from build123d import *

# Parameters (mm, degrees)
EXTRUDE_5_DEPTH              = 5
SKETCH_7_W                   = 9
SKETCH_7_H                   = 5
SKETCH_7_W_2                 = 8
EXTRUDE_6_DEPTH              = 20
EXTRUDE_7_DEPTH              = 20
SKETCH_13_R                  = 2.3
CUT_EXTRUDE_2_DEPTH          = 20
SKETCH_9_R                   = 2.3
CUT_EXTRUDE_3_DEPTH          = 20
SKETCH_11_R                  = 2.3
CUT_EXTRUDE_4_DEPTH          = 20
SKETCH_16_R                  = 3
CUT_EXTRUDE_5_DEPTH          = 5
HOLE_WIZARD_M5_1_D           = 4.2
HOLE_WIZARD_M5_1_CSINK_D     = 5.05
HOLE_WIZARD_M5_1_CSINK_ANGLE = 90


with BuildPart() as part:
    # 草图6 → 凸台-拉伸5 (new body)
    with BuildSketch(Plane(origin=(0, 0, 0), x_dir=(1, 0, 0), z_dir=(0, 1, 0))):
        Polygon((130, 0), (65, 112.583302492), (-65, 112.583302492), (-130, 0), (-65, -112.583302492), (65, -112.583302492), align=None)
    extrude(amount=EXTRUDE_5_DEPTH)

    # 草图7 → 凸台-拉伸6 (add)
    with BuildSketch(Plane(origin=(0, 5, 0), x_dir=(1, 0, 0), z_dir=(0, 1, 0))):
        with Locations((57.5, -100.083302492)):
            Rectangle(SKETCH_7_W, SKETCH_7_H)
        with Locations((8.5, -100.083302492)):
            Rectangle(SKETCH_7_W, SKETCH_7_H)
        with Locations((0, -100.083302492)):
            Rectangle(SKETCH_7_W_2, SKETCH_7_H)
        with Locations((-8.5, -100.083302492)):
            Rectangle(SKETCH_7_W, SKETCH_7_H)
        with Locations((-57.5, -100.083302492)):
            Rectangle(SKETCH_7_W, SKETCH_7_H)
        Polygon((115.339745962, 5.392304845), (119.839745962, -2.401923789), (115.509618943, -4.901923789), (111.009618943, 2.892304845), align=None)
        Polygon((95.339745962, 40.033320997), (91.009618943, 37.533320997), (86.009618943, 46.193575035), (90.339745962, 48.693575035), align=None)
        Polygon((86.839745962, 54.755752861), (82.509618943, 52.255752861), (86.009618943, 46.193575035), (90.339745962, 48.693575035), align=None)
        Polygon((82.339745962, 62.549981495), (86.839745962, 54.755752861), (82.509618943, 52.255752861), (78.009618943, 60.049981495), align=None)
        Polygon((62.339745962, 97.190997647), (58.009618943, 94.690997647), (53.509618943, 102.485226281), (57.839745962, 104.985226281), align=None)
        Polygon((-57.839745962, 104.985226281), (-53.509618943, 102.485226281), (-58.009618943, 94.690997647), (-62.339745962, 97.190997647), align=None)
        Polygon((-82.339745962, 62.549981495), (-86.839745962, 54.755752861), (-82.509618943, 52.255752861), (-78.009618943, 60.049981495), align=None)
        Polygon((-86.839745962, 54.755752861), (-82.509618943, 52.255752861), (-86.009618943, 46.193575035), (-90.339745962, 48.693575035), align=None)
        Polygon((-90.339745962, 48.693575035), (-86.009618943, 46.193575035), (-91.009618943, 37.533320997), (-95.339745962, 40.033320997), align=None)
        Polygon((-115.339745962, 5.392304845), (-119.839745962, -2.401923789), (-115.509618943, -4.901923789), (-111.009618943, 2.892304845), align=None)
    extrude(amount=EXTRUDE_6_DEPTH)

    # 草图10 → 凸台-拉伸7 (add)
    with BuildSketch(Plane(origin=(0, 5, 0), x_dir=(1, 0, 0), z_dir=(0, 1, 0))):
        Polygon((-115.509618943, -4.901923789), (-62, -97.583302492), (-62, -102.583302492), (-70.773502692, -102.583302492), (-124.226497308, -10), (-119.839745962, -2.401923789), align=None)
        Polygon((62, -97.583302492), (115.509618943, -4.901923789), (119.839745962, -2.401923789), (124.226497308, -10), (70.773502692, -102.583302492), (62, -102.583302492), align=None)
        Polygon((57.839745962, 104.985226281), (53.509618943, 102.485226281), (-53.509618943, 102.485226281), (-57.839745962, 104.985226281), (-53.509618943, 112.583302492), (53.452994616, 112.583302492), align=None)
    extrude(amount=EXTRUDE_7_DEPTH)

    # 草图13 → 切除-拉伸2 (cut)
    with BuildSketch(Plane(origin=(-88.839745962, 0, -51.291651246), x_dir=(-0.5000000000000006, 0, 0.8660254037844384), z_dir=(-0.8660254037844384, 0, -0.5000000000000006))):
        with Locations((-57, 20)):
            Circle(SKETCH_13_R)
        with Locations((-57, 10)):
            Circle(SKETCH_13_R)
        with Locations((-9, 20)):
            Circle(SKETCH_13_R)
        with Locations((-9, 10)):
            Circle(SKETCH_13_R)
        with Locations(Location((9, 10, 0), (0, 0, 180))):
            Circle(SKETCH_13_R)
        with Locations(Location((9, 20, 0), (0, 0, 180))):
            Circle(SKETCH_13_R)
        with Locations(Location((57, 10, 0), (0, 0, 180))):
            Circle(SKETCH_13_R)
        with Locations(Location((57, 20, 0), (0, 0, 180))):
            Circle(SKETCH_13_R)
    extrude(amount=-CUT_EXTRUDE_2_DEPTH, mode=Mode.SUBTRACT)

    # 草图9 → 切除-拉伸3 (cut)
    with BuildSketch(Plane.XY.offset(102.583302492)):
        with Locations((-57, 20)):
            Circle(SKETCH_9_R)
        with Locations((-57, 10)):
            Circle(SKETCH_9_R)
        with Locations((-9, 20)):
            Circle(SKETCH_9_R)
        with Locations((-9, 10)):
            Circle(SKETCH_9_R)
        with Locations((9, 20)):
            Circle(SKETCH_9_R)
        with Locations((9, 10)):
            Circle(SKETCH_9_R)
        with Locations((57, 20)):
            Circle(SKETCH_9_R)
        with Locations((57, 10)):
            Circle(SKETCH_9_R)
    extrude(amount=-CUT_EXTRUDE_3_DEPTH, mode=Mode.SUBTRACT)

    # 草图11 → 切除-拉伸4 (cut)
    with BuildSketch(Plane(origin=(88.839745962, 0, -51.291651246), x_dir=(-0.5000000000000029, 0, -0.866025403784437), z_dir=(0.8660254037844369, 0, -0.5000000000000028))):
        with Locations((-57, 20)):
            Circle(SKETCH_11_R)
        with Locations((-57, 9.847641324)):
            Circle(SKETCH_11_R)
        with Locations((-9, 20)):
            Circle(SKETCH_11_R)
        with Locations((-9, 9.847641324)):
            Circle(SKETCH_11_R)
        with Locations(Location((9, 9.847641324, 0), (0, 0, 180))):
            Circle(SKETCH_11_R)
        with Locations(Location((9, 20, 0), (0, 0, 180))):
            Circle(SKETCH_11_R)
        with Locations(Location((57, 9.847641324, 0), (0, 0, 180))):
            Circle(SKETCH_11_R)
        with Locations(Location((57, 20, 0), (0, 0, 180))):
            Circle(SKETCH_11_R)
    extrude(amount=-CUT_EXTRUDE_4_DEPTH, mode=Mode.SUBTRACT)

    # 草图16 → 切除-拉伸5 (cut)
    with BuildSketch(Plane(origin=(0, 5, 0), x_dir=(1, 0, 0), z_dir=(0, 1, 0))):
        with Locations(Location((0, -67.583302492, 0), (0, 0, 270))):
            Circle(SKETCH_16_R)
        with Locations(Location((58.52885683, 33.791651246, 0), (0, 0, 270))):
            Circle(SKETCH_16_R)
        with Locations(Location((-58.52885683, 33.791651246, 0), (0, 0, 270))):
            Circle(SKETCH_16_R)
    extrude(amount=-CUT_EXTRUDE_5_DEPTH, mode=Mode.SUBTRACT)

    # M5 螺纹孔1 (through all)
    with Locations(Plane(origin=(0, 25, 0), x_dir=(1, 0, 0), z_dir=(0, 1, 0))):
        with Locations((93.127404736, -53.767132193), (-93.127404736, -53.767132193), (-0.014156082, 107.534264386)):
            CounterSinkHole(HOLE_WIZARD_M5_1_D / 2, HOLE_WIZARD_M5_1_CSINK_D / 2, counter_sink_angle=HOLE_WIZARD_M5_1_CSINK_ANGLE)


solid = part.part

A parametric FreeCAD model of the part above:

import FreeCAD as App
import Part
import Sketcher
from FreeCAD import Vector
Q = App.Units.Quantity


def add_polygon(sketch, points):
    """Adds a closed chain of lines whose ends are joined by coincident constraints."""
    first, n = sketch.GeometryCount, len(points)
    for a, b in zip(points, points[1:] + points[:1]):
        sketch.addGeometry(Part.LineSegment(App.Vector(*a, 0), App.Vector(*b, 0)), False)
    for i in range(n):
        sketch.addConstraint(Sketcher.Constraint("Coincident", first + i, 2, first + (i + 1) % n, 1))

doc = App.newDocument("Part")
body = doc.addObject("PartDesign::Body", "Body")

sketch1 = doc.addObject("Sketcher::SketchObject", "Sketch")
body.addObject(sketch1)
sketch1.AttachmentSupport = (doc.XZ_Plane, [""])
sketch1.MapMode = "FlatFace"
add_polygon(sketch1, [(130, 0), (65, -113), (-65, -113), (-130, 0), (-65, 113), (65, 113)])
sketch1.addConstraint([
    Sketcher.Constraint("Horizontal", 1),
    Sketcher.Constraint("Horizontal", 4),
    Sketcher.Constraint("Symmetric", 0, 2, 3, 2, -1, 1),
    Sketcher.Constraint("Symmetric", 2, 2, 5, 2, -1, 1),
    Sketcher.Constraint("PointOnObject", 2, 2, -1),
    Sketcher.Constraint("Parallel", 2, 5),
    Sketcher.Constraint("Vertical", 1, 2, 3, 2),
    Sketcher.Constraint("DistanceX", 1, 2, 1, 1, Q("130 mm")),
    Sketcher.Constraint("Angle", 0, Q("-120 deg")),
    Sketcher.Constraint("Distance", 0, Q("130 mm")),
])
pad1 = doc.addObject("PartDesign::Pad", "Pad")
body.addObject(pad1)
pad1.Profile = sketch1
pad1.Length = 5
pad1.Reversed = True

sketch2 = doc.addObject("Sketcher::SketchObject", "Sketch001")
body.addObject(sketch2)
sketch2.AttachmentSupport = (doc.XZ_Plane, [""])
sketch2.MapMode = "FlatFace"
sketch2.AttachmentOffset = App.Placement(Vector(0, 0, -5), App.Rotation())
add_polygon(sketch2, [(53, 98), (53, 103), (62, 103), (62, 98)])
add_polygon(sketch2, [(13, 103), (13, 98), (-13, 98), (-13, 103)])
add_polygon(sketch2, [(-62, 98), (-62, 103), (-53, 103), (-53, 98)])
add_polygon(sketch2, [(120, 2), (115, -5), (111, -3), (116, 5)])
add_polygon(sketch2, [(91, -38), (95, -40), (90, -49), (87, -55), (82, -63), (78, -60), (83, -52), (86, -46)])
add_polygon(sketch2, [(58, -95), (62, -97), (58, -105), (54, -102)])
add_polygon(sketch2, [(-54, -102), (-58, -105), (-62, -97), (-58, -95)])
add_polygon(sketch2, [(-82, -63), (-87, -55), (-90, -49), (-95, -40), (-91, -38), (-86, -46), (-83, -52), (-78, -60)])
add_polygon(sketch2, [(-115, -5), (-120, 2), (-116, 5), (-111, -3)])
sketch2.addConstraint([
    Sketcher.Constraint("Vertical", 0),
    Sketcher.Constraint("Horizontal", 1),
    Sketcher.Constraint("Vertical", 2),
    Sketcher.Constraint("Horizontal", 3),
    Sketcher.Constraint("Vertical", 4),
    Sketcher.Constraint("Horizontal", 5),
    Sketcher.Constraint("Vertical", 6),
    Sketcher.Constraint("Horizontal", 7),
    Sketcher.Constraint("Vertical", 8),
    Sketcher.Constraint("Horizontal", 9),
    Sketcher.Constraint("Vertical", 10),
    Sketcher.Constraint("Horizontal", 11),
    Sketcher.Constraint("Symmetric", 1, 2, 8, 2, -2),
    Sketcher.Constraint("Symmetric", 3, 2, 10, 2, -2),
    Sketcher.Constraint("Symmetric", 25, 2, 28, 2, -2),
    Sketcher.Constraint("Symmetric", 24, 2, 29, 2, -2),
    Sketcher.Constraint("Symmetric", 27, 2, 30, 2, -2),
    Sketcher.Constraint("Symmetric", 26, 2, 31, 2, -2),
    Sketcher.Constraint("Symmetric", 18, 2, 32, 2, -2),
    Sketcher.Constraint("Symmetric", 17, 2, 33, 2, -2),
    Sketcher.Constraint("Symmetric", 16, 2, 34, 2, -2),
    Sketcher.Constraint("Symmetric", 23, 2, 35, 2, -2),
    Sketcher.Constraint("Symmetric", 22, 2, 36, 2, -2),
    Sketcher.Constraint("Symmetric", 21, 2, 37, 2, -2),
    Sketcher.Constraint("Symmetric", 20, 2, 38, 2, -2),
    Sketcher.Constraint("Symmetric", 19, 2, 39, 2, -2),
    Sketcher.Constraint("Symmetric", 15, 2, 40, 2, -2),
    Sketcher.Constraint("Symmetric", 14, 2, 41, 2, -2),
    Sketcher.Constraint("Symmetric", 13, 2, 42, 2, -2),
    Sketcher.Constraint("Symmetric", 12, 2, 43, 2, -2),
    Sketcher.Constraint("Perpendicular", 12, 13),
    Sketcher.Constraint("Perpendicular", 13, 14),
    Sketcher.Constraint("Perpendicular", 14, 15),
    Sketcher.Constraint("Parallel", 15, 16),
    Sketcher.Constraint("Perpendicular", 16, 17),
    Sketcher.Constraint("Parallel", 17, 18),
    Sketcher.Constraint("Parallel", 18, 19),
    Sketcher.Constraint("Perpendicular", 19, 20),
    Sketcher.Constraint("Perpendicular", 20, 21),
    Sketcher.Constraint("Parallel", 21, 22),
    Sketcher.Constraint("Parallel", 22, 23),
    Sketcher.Constraint("Perpendicular", 23, 24),
    Sketcher.Constraint("Perpendicular", 24, 25),
    Sketcher.Constraint("Perpendicular", 25, 26),
    Sketcher.Constraint("Perpendicular", 26, 27),
    Sketcher.Constraint("Horizontal", 3, 2, 4, 2),
    Sketcher.Constraint("Horizontal", 1, 2, 6, 2),
    Sketcher.Constraint("Equal", 15, 16),
    Sketcher.Constraint("Equal", 14, 19),
    Sketcher.Constraint("Equal", 19, 21),
    Sketcher.Constraint("Equal", 18, 22),
    Sketcher.Constraint("Equal", 20, 24),
    Sketcher.Constraint("Equal", 21, 25),
    Sketcher.Constraint("DistanceX", 1, 1, 1, 2, Q("9 mm")),
    Sketcher.Constraint("DistanceX", 5, 2, 5, 1, Q("26 mm")),
    Sketcher.Constraint("DistanceY", 0, 1, 0, 2, Q("5 mm")),
    Sketcher.Constraint("Angle", 12, Q("-120 deg")),
    Sketcher.Constraint("Distance", 12, Q("9 mm")),
    Sketcher.Constraint("Distance", 13, Q("5 mm")),
    Sketcher.Constraint("Distance", 17, Q("10 mm")),
    Sketcher.Constraint("Distance", 18, Q("7 mm")),
    Sketcher.Constraint("DistanceX", -1, 1, 0, 2, Q("53 mm")),
    Sketcher.Constraint("DistanceX", -1, 1, 4, 2, Q("13 mm")),
    Sketcher.Constraint("DistanceX", 16, 2, 12, 2, Q("20 mm")),
    Sketcher.Constraint("DistanceX", 24, 2, 19, 2, Q("20 mm")),
    Sketcher.Constraint("DistanceY", 17, 2, 15, 2, Q("51.095499 mm")),
    Sketcher.Constraint("DistanceX", -1, 1, 13, 2, Q("111.009619 mm")),
    Sketcher.Constraint("DistanceY", 16, 2, -1, 1, Q("40.033321 mm")),
    Sketcher.Constraint("DistanceY", 14, 2, 2, 2, Q("92.681379 mm")),
    Sketcher.Constraint("DistanceY", 28, 2, 33, 2, Q("56.291651 mm")),
])
pad2 = doc.addObject("PartDesign::Pad", "Pad001")
body.addObject(pad2)
pad2.Profile = sketch2
pad2.Length = 20
pad2.Reversed = True

sketch3 = doc.addObject("Sketcher::SketchObject", "Sketch002")
body.addObject(sketch3)
sketch3.AttachmentSupport = (doc.XZ_Plane, [""])
sketch3.MapMode = "FlatFace"
sketch3.AttachmentOffset = App.Placement(Vector(0, 0, -5), App.Rotation())
add_polygon(sketch3, [(-62, 98), (-116, 5), (-120, 2), (-124, 10), (-71, 103), (-62, 103)])
add_polygon(sketch3, [(116, 5), (62, 98), (62, 103), (71, 103), (124, 10), (120, 2)])
add_polygon(sketch3, [(54, -102), (58, -105), (53, -113), (-54, -113), (-58, -105), (-54, -102)])
sketch3.addConstraint([
    Sketcher.Constraint("Horizontal", 4),
    Sketcher.Constraint("Vertical", 5),
    Sketcher.Constraint("Vertical", 7),
    Sketcher.Constraint("Horizontal", 8),
    Sketcher.Constraint("Horizontal", 14),
    Sketcher.Constraint("Horizontal", 17),
    Sketcher.Constraint("Symmetric", 5, 2, 6, 2, -2),
    Sketcher.Constraint("Symmetric", 3, 2, 8, 2, -2),
    Sketcher.Constraint("Symmetric", 2, 2, 9, 2, -2),
    Sketcher.Constraint("Symmetric", 1, 2, 10, 2, -2),
    Sketcher.Constraint("Symmetric", 0, 2, 11, 2, -2),
    Sketcher.Constraint("Symmetric", 12, 2, 15, 2, -2),
    Sketcher.Constraint("Perpendicular", 1, 2),
    Sketcher.Constraint("Parallel", 0, 3),
    Sketcher.Constraint("Parallel", 2, 6),
    Sketcher.Constraint("Parallel", 11, 12),
    Sketcher.Constraint("Perpendicular", 12, 13),
    Sketcher.Constraint("Perpendicular", 9, 16),
    Sketcher.Constraint("Vertical", 14, 2, 16, 2),
    Sketcher.Constraint("Equal", 11, 12),
    Sketcher.Constraint("Equal", 10, 13),
    Sketcher.Constraint("DistanceY", 5, 2, 5, 1, Q("5 mm")),
    Sketcher.Constraint("Angle", 0, Q("-120 deg")),
    Sketcher.Constraint("Distance", 1, Q("5 mm")),
    Sketcher.Constraint("DistanceY", -1, 1, 2, 2, Q("10 mm")),
    Sketcher.Constraint("DistanceX", 4, 2, -1, 1, Q("62 mm")),
    Sketcher.Constraint("DistanceX", 12, 2, 10, 2, Q("62 mm")),
    Sketcher.Constraint("Distance", 3, Q("106.905989 mm")),
    Sketcher.Constraint("Distance", 15, Q("8.745328 mm")),
    Sketcher.Constraint("DistanceY", 12, 2, 10, 2, Q("107.38715 mm")),
])
pad3 = doc.addObject("PartDesign::Pad", "Pad002")
body.addObject(pad3)
pad3.Profile = sketch3
pad3.Length = 20
pad3.Reversed = True

sketch4 = doc.addObject("Sketcher::SketchObject", "Sketch003")
body.addObject(sketch4)
sketch4.Placement = App.Placement(Vector(-88.839746, 0, -51.291651), App.Rotation(Vector(-0.5, 0, 0.866025404), Vector(0, 1, 0), Vector(-0.866025404, 0, -0.5), "ZXY"))
sketch4.addGeometry([
    Part.Circle(Vector(-57, 20, 0), Vector(0, 0, 1), 2.3),
    Part.Circle(Vector(-57, 10, 0), Vector(0, 0, 1), 2.3),
    Part.Circle(Vector(-9, 20, 0), Vector(0, 0, 1), 2.3),
    Part.Circle(Vector(-9, 10, 0), Vector(0, 0, 1), 2.3),
    Part.Circle(Vector(9, 10, 0), Vector(0, 0, 1), 2.3),
    Part.Circle(Vector(9, 20, 0), Vector(0, 0, 1), 2.3),
    Part.Circle(Vector(57, 10, 0), Vector(0, 0, 1), 2.3),
    Part.Circle(Vector(57, 20, 0), Vector(0, 0, 1), 2.3),
], False)
sketch4.addConstraint([
    Sketcher.Constraint("Equal", 0, 1),
    Sketcher.Constraint("Equal", 1, 2),
    Sketcher.Constraint("Equal", 2, 3),
    Sketcher.Constraint("Equal", 3, 4),
    Sketcher.Constraint("Equal", 4, 5),
    Sketcher.Constraint("Equal", 5, 6),
    Sketcher.Constraint("Equal", 6, 7),
    Sketcher.Constraint("Symmetric", 3, 3, 4, 3, -2),
    Sketcher.Constraint("Symmetric", 2, 3, 5, 3, -2),
    Sketcher.Constraint("Symmetric", 1, 3, 6, 3, -2),
    Sketcher.Constraint("Symmetric", 0, 3, 7, 3, -2),
    Sketcher.Constraint("Horizontal", 0, 3, 2, 3),
    Sketcher.Constraint("Horizontal", 1, 3, 3, 3),
    Sketcher.Constraint("Vertical", 0, 3, 1, 3),
    Sketcher.Constraint("Vertical", 2, 3, 3, 3),
    Sketcher.Constraint("Diameter", 0, Q("4.6 mm")),
    Sketcher.Constraint("DistanceX", 0, 3, -1, 1, Q("57 mm")),
    Sketcher.Constraint("DistanceY", -1, 1, 0, 3, Q("20 mm")),
    Sketcher.Constraint("DistanceY", -1, 1, 1, 3, Q("10 mm")),
    Sketcher.Constraint("DistanceX", 2, 3, -1, 1, Q("9 mm")),
])
pocket1 = doc.addObject("PartDesign::Pocket", "Pocket")
body.addObject(pocket1)
pocket1.Profile = sketch4
pocket1.Length = 20

sketch5 = doc.addObject("Sketcher::SketchObject", "Sketch004")
body.addObject(sketch5)
sketch5.AttachmentSupport = (doc.XY_Plane, [""])
sketch5.MapMode = "FlatFace"
sketch5.AttachmentOffset = App.Placement(Vector(0, 0, 102.583302), App.Rotation())
sketch5.addGeometry([
    Part.Circle(Vector(-57, 20, 0), Vector(0, 0, 1), 2.3),
    Part.Circle(Vector(-57, 10, 0), Vector(0, 0, 1), 2.3),
    Part.Circle(Vector(-9, 20, 0), Vector(0, 0, 1), 2.3),
    Part.Circle(Vector(-9, 10, 0), Vector(0, 0, 1), 2.3),
    Part.Circle(Vector(9, 20, 0), Vector(0, 0, 1), 2.3),
    Part.Circle(Vector(9, 10, 0), Vector(0, 0, 1), 2.3),
    Part.Circle(Vector(57, 20, 0), Vector(0, 0, 1), 2.3),
    Part.Circle(Vector(57, 10, 0), Vector(0, 0, 1), 2.3),
], False)
sketch5.addConstraint([
    Sketcher.Constraint("Equal", 0, 1),
    Sketcher.Constraint("Equal", 1, 2),
    Sketcher.Constraint("Equal", 2, 3),
    Sketcher.Constraint("Equal", 3, 4),
    Sketcher.Constraint("Equal", 4, 5),
    Sketcher.Constraint("Equal", 5, 6),
    Sketcher.Constraint("Equal", 6, 7),
    Sketcher.Constraint("Symmetric", 2, 3, 4, 3, -2),
    Sketcher.Constraint("Symmetric", 3, 3, 5, 3, -2),
    Sketcher.Constraint("Symmetric", 0, 3, 6, 3, -2),
    Sketcher.Constraint("Symmetric", 1, 3, 7, 3, -2),
    Sketcher.Constraint("Horizontal", 0, 3, 2, 3),
    Sketcher.Constraint("Horizontal", 1, 3, 3, 3),
    Sketcher.Constraint("Vertical", 0, 3, 1, 3),
    Sketcher.Constraint("Vertical", 2, 3, 3, 3),
    Sketcher.Constraint("Diameter", 0, Q("4.6 mm")),
    Sketcher.Constraint("DistanceX", 0, 3, -1, 1, Q("57 mm")),
    Sketcher.Constraint("DistanceY", -1, 1, 0, 3, Q("20 mm")),
    Sketcher.Constraint("DistanceY", -1, 1, 1, 3, Q("10 mm")),
    Sketcher.Constraint("DistanceX", 2, 3, -1, 1, Q("9 mm")),
])
pocket2 = doc.addObject("PartDesign::Pocket", "Pocket001")
body.addObject(pocket2)
pocket2.Profile = sketch5
pocket2.Length = 20

sketch6 = doc.addObject("Sketcher::SketchObject", "Sketch005")
body.addObject(sketch6)
sketch6.Placement = App.Placement(Vector(88.839746, 0, -51.291651), App.Rotation(Vector(-0.5, 0, -0.866025404), Vector(0, 1, 0), Vector(0.866025404, 0, -0.5), "ZXY"))
sketch6.addGeometry([
    Part.Circle(Vector(-57, 20, 0), Vector(0, 0, 1), 2.3),
    Part.Circle(Vector(-57, 9.8, 0), Vector(0, 0, 1), 2.3),
    Part.Circle(Vector(-9, 20, 0), Vector(0, 0, 1), 2.3),
    Part.Circle(Vector(-9, 9.8, 0), Vector(0, 0, 1), 2.3),
    Part.Circle(Vector(9, 9.8, 0), Vector(0, 0, 1), 2.3),
    Part.Circle(Vector(9, 20, 0), Vector(0, 0, 1), 2.3),
    Part.Circle(Vector(57, 9.8, 0), Vector(0, 0, 1), 2.3),
    Part.Circle(Vector(57, 20, 0), Vector(0, 0, 1), 2.3),
], False)
sketch6.addConstraint([
    Sketcher.Constraint("Equal", 0, 1),
    Sketcher.Constraint("Equal", 1, 2),
    Sketcher.Constraint("Equal", 2, 3),
    Sketcher.Constraint("Equal", 3, 4),
    Sketcher.Constraint("Equal", 4, 5),
    Sketcher.Constraint("Equal", 5, 6),
    Sketcher.Constraint("Equal", 6, 7),
    Sketcher.Constraint("Symmetric", 3, 3, 4, 3, -2),
    Sketcher.Constraint("Symmetric", 2, 3, 5, 3, -2),
    Sketcher.Constraint("Symmetric", 1, 3, 6, 3, -2),
    Sketcher.Constraint("Symmetric", 0, 3, 7, 3, -2),
    Sketcher.Constraint("Horizontal", 0, 3, 2, 3),
    Sketcher.Constraint("Horizontal", 1, 3, 3, 3),
    Sketcher.Constraint("Vertical", 0, 3, 1, 3),
    Sketcher.Constraint("Vertical", 2, 3, 3, 3),
    Sketcher.Constraint("Diameter", 0, Q("4.6 mm")),
    Sketcher.Constraint("DistanceX", 0, 3, -1, 1, Q("57 mm")),
    Sketcher.Constraint("DistanceY", -1, 1, 0, 3, Q("20 mm")),
    Sketcher.Constraint("DistanceX", 2, 3, -1, 1, Q("9 mm")),
    Sketcher.Constraint("DistanceY", -1, 1, 1, 3, Q("9.847641 mm")),
])
pocket3 = doc.addObject("PartDesign::Pocket", "Pocket002")
body.addObject(pocket3)
pocket3.Profile = sketch6
pocket3.Length = 20

sketch7 = doc.addObject("Sketcher::SketchObject", "Sketch006")
body.addObject(sketch7)
sketch7.AttachmentSupport = (doc.XZ_Plane, [""])
sketch7.MapMode = "FlatFace"
sketch7.AttachmentOffset = App.Placement(Vector(0, 0, -5), App.Rotation())
sketch7.addGeometry([
    Part.Circle(Vector(0, 67.6, 0), Vector(0, 0, 1), 3),
    Part.Circle(Vector(58.5, -33.8, 0), Vector(0, 0, 1), 3),
    Part.Circle(Vector(-58.5, -33.8, 0), Vector(0, 0, 1), 3),
], False)
sketch7.addConstraint([
    Sketcher.Constraint("Equal", 0, 1),
    Sketcher.Constraint("Equal", 1, 2),
    Sketcher.Constraint("Symmetric", 1, 3, 2, 3, -2),
    Sketcher.Constraint("PointOnObject", 0, 3, -2),
    Sketcher.Constraint("Diameter", 0, Q("6 mm")),
    Sketcher.Constraint("DistanceY", 1, 3, -1, 1, Q("33.791651 mm")),
    Sketcher.Constraint("DistanceY", -1, 1, 0, 3, Q("67.583302 mm")),
    Sketcher.Constraint("DistanceX", -1, 1, 1, 3, Q("58.528857 mm")),
])
pocket4 = doc.addObject("PartDesign::Pocket", "Pocket003")
body.addObject(pocket4)
pocket4.Profile = sketch7
pocket4.Length = 5
pocket4.Reversed = True

sketch8 = doc.addObject("Sketcher::SketchObject", "Sketch007")
body.addObject(sketch8)
sketch8.AttachmentSupport = (doc.XZ_Plane, [""])
sketch8.MapMode = "FlatFace"
sketch8.AttachmentOffset = App.Placement(Vector(0, 0, -25), App.Rotation())
sketch8.addGeometry([
    Part.Circle(Vector(93.1, 53.8, 0), Vector(0, 0, 1), 2.1),
    Part.Circle(Vector(-93.1, 53.8, 0), Vector(0, 0, 1), 2.1),
    Part.Circle(Vector(0, -107.5, 0), Vector(0, 0, 1), 2.1),
], False)
sketch8.addConstraint([
    Sketcher.Constraint("Equal", 0, 1),
    Sketcher.Constraint("Equal", 1, 2),
    Sketcher.Constraint("Symmetric", 0, 3, 1, 3, -2),
    Sketcher.Constraint("Diameter", 0, Q("4.2 mm")),
    Sketcher.Constraint("DistanceX", 1, 3, 0, 3, Q("186.254809 mm")),
    Sketcher.Constraint("DistanceX", 1, 3, 2, 3, Q("93.113249 mm")),
    Sketcher.Constraint("DistanceY", -1, 1, 0, 3, Q("53.767132 mm")),
    Sketcher.Constraint("DistanceY", 2, 3, -1, 1, Q("107.534264 mm")),
])
doc.recompute()
hole = doc.addObject("PartDesign::Hole", "Hole")
body.addObject(hole)
hole.Profile = sketch8
hole.ThreadType = "None"
hole.Diameter = 4.2
hole.DepthType = "ThroughAll"
hole.HoleCutType = "Countersink"
hole.HoleCutDiameter = 5.05
hole.HoleCutCountersinkAngle = 90
hole.Reversed = True

doc.recompute()
